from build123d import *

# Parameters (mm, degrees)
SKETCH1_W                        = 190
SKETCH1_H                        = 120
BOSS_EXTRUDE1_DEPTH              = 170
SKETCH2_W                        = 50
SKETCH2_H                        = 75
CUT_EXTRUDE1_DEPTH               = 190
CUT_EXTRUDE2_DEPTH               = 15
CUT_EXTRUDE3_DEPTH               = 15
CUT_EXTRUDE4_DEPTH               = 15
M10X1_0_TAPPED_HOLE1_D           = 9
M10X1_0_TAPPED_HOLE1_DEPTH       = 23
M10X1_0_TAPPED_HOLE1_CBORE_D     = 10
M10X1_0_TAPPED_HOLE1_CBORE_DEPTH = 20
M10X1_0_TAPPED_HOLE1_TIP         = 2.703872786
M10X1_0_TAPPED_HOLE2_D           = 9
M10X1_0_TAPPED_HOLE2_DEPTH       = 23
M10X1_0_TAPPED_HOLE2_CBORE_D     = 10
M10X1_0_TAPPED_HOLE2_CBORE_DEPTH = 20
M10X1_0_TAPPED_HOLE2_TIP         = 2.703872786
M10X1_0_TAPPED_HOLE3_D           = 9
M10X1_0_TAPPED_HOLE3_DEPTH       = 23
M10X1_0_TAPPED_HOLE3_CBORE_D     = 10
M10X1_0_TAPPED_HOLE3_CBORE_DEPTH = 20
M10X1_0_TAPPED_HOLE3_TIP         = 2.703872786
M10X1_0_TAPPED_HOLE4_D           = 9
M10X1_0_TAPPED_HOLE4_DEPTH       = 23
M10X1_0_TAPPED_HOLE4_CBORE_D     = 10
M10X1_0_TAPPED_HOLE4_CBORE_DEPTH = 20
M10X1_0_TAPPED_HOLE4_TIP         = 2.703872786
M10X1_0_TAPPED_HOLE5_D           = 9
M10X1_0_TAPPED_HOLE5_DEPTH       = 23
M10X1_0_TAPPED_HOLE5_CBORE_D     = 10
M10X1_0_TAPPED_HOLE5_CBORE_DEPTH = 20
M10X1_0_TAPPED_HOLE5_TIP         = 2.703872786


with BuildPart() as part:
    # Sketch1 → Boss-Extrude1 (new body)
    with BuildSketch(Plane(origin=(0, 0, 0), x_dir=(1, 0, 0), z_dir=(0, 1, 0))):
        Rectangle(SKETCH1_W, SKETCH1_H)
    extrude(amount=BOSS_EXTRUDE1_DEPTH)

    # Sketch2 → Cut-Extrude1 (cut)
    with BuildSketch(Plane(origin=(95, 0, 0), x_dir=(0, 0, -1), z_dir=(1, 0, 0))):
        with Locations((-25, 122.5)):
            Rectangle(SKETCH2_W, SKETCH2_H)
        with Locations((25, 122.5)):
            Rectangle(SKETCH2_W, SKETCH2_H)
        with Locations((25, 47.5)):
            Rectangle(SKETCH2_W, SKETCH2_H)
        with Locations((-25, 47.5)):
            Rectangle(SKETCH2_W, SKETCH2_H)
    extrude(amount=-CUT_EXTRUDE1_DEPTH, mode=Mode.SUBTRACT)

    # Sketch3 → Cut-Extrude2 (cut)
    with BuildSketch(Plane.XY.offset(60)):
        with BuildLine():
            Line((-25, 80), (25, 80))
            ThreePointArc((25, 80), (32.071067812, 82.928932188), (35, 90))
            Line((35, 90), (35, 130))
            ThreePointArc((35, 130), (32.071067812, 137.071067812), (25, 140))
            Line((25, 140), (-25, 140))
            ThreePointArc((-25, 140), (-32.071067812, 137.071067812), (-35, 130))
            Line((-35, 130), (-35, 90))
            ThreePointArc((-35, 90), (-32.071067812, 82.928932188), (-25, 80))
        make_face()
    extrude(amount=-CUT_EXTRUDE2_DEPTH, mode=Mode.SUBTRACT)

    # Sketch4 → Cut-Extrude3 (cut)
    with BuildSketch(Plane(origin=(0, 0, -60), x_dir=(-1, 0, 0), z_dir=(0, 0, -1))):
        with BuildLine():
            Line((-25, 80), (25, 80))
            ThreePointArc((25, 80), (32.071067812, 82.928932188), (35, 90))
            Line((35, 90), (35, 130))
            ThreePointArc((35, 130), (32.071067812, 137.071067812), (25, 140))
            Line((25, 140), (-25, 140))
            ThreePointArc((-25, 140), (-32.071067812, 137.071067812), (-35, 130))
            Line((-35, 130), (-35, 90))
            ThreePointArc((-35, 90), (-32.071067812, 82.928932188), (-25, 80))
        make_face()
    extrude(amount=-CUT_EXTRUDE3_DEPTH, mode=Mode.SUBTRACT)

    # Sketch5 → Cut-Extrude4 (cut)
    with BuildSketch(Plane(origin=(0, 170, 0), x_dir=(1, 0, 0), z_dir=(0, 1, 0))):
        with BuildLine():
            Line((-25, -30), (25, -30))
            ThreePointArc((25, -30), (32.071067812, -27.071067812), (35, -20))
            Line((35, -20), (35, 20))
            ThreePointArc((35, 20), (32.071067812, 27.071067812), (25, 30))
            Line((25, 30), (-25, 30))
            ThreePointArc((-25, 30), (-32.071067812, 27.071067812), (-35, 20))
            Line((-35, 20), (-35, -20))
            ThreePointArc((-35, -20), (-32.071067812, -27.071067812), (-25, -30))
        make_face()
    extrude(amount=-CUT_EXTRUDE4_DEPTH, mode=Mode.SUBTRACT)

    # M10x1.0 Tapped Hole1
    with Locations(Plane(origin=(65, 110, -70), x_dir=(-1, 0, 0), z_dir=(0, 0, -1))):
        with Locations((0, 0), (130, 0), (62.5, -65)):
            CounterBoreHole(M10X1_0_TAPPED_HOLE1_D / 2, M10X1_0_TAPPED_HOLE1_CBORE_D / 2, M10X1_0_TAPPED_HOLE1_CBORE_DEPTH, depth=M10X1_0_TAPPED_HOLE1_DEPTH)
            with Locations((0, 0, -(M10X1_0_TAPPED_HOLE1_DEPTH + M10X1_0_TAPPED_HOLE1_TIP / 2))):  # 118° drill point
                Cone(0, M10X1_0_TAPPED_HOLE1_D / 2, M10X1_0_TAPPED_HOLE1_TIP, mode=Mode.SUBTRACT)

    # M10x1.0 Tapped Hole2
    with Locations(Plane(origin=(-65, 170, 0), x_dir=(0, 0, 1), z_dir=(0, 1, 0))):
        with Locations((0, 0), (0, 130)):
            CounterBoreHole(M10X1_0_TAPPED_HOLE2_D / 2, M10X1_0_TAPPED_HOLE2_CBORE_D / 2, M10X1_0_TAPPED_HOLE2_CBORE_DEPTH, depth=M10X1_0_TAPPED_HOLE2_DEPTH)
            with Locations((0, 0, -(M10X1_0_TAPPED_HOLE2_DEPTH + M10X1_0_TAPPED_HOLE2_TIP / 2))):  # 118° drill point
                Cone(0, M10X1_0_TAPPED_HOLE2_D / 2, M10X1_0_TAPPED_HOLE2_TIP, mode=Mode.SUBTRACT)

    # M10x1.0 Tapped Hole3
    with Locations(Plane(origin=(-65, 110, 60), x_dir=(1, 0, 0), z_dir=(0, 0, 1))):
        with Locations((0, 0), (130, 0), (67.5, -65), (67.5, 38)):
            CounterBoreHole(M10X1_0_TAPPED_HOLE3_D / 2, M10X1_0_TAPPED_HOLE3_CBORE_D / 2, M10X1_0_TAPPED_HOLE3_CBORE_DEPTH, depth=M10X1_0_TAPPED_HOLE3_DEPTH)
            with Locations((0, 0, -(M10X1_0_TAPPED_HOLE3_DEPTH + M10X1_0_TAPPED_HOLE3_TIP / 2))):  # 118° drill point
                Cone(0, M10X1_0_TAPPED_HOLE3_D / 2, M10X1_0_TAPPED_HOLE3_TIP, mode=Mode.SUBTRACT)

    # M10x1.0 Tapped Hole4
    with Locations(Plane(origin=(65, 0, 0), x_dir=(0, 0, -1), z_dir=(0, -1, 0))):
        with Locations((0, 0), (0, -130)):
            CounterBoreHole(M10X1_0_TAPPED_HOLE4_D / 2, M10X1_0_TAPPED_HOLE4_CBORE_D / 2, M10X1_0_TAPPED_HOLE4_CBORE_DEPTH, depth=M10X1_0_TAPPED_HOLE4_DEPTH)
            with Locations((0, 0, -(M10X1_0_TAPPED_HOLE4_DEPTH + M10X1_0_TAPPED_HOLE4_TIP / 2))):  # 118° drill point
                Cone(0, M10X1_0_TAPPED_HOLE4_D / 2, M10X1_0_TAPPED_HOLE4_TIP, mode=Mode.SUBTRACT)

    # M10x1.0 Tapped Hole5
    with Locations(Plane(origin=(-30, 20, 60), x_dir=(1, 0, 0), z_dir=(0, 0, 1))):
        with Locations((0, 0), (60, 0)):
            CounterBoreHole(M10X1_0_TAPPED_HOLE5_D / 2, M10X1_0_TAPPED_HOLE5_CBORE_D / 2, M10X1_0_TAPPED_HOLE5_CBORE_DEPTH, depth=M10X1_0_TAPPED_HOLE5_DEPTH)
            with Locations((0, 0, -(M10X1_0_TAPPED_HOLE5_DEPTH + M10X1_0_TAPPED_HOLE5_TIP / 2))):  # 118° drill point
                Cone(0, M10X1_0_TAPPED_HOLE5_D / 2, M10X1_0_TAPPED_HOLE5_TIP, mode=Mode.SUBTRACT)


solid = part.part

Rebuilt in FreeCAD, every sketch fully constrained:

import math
import FreeCAD as App
import Part
import Sketcher

V = App.Vector
Q = App.Units.Quantity


def add_polygon(sketch, points):
    """Adds a closed chain of lines whose ends are joined by coincident constraints."""
    first, n = sketch.GeometryCount, len(points)
    for a, b in zip(points, points[1:] + points[:1]):
        sketch.addGeometry(Part.LineSegment(App.Vector(*a, 0), App.Vector(*b, 0)), False)
    for i in range(n):
        sketch.addConstraint(Sketcher.Constraint("Coincident", first + i, 2, first + (i + 1) % n, 1))

doc = App.newDocument("Part")
body = doc.addObject("PartDesign::Body", "Body")

# Sketch on XZ plane
sketch1 = body.newObject("Sketcher::SketchObject", "Sketch")
sketch1.AttachmentSupport = (doc.getObject("XZ_Plane"), [""])
sketch1.MapMode = "FlatFace"
add_polygon(sketch1, [(-95, -60), (-95, 60), (95, 60), (95, -60)])  # lines 0-3
sketch1.addConstraint([
    Sketcher.Constraint("Vertical", 0),
    Sketcher.Constraint("Horizontal", 1),
    Sketcher.Constraint("Vertical", 2),
    Sketcher.Constraint("Horizontal", 3),
    Sketcher.Constraint("Symmetric", 0, 2, 2, 2, -1, 1),
    Sketcher.Constraint("DistanceX", 1, 1, 1, 2, Q("190 mm")),
    Sketcher.Constraint("DistanceY", 0, 1, 0, 2, Q("120 mm")),
])
pad1 = body.newObject("PartDesign::Pad", "Pad")
pad1.Profile = sketch1
pad1.Length = 170
pad1.Reversed = True

# Sketch on YZ plane
sketch2 = body.newObject("Sketcher::SketchObject", "Sketch001")
sketch2.AttachmentSupport = (doc.getObject("YZ_Plane"), [""])
sketch2.MapMode = "FlatFace"
sketch2.AttachmentOffset = App.Placement(V(0, 0, 95), App.Rotation())
add_polygon(sketch2, [(160, 50), (10, 50), (10, -50), (160, -50)])  # lines 0-3
sketch2.addConstraint([
    Sketcher.Constraint("Horizontal", 0),
    Sketcher.Constraint("Vertical", 1),
    Sketcher.Constraint("Horizontal", 2),
    Sketcher.Constraint("Vertical", 3),
    Sketcher.Constraint("DistanceX", 0, 2, 0, 1, Q("150 mm")),
    Sketcher.Constraint("DistanceY", 1, 2, 1, 1, Q("100 mm")),
    Sketcher.Constraint("DistanceX", -1, 1, 0, 2, Q("10 mm")),
    Sketcher.Constraint("DistanceY", -1, 1, 0, 2, Q("50 mm")),
])
pocket1 = body.newObject("PartDesign::Pocket", "Pocket")
pocket1.Profile = sketch2
pocket1.Length = 190

# Sketch on XY plane
sketch3 = body.newObject("Sketcher::SketchObject", "Sketch002")
sketch3.AttachmentSupport = (doc.getObject("XY_Plane"), [""])
sketch3.MapMode = "FlatFace"
sketch3.AttachmentOffset = App.Placement(V(0, 0, 60), App.Rotation())
sketch3.addGeometry([
    Part.LineSegment(V(-25, 80, 0), V(25, 80, 0)),  # 0
    Part.ArcOfCircle(Part.Circle(V(25, 90, 0), V(0, 0, 1), 10), math.radians(-90), math.radians(0)),  # 1
    Part.LineSegment(V(35, 90, 0), V(35, 130, 0)),  # 2
    Part.ArcOfCircle(Part.Circle(V(25, 130, 0), V(0, 0, 1), 10), math.radians(0), math.radians(90)),  # 3
    Part.LineSegment(V(25, 140, 0), V(-25, 140, 0)),  # 4
    Part.ArcOfCircle(Part.Circle(V(-25, 130, 0), V(0, 0, 1), 10), math.radians(90), math.radians(180)),  # 5
    Part.LineSegment(V(-35, 130, 0), V(-35, 90, 0)),  # 6
    Part.ArcOfCircle(Part.Circle(V(-25, 90, 0), V(0, 0, 1), 10), math.radians(180), math.radians(270)),  # 7
], False)
sketch3.addConstraint([
    Sketcher.Constraint("Tangent", 0, 2, 1, 1),
    Sketcher.Constraint("Tangent", 1, 2, 2, 1),
    Sketcher.Constraint("Tangent", 2, 2, 3, 1),
    Sketcher.Constraint("Tangent", 3, 2, 4, 1),
    Sketcher.Constraint("Tangent", 4, 2, 5, 1),
    Sketcher.Constraint("Tangent", 5, 2, 6, 1),
    Sketcher.Constraint("Tangent", 6, 2, 7, 1),
    Sketcher.Constraint("Tangent", 7, 2, 0, 1),
    Sketcher.Constraint("Horizontal", 0),
    Sketcher.Constraint("Vertical", 2),
    Sketcher.Constraint("Horizontal", 4),
    Sketcher.Constraint("Vertical", 6),
    Sketcher.Constraint("Equal", 1, 3),
    Sketcher.Constraint("Equal", 3, 5),
    Sketcher.Constraint("Equal", 5, 7),
    Sketcher.Constraint("Radius", 1, Q("10 mm")),
    Sketcher.Constraint("DistanceX", 0, 1, 0, 2, Q("50 mm")),
    Sketcher.Constraint("DistanceY", 2, 1, 2, 2, Q("40 mm")),
    Sketcher.Constraint("DistanceX", -1, 1, 1, 3, Q("25 mm")),
    Sketcher.Constraint("DistanceY", -1, 1, 1, 3, Q("90 mm")),
])
pocket2 = body.newObject("PartDesign::Pocket", "Pocket001")
pocket2.Profile = sketch3
pocket2.Length = 15

# Sketch on XY plane
sketch4 = body.newObject("Sketcher::SketchObject", "Sketch003")
sketch4.AttachmentSupport = (doc.getObject("XY_Plane"), [""])
sketch4.MapMode = "FlatFace"
sketch4.AttachmentOffset = App.Placement(V(0, 0, -60), App.Rotation())
sketch4.addGeometry([
    Part.LineSegment(V(25, 80, 0), V(-25, 80, 0)),  # 0
    Part.ArcOfCircle(Part.Circle(V(-25, 90, 0), V(0, 0, 1), 10), math.radians(180), math.radians(270)),  # 1
    Part.LineSegment(V(-35, 90, 0), V(-35, 130, 0)),  # 2
    Part.ArcOfCircle(Part.Circle(V(-25, 130, 0), V(0, 0, 1), 10), math.radians(90), math.radians(180)),  # 3
    Part.LineSegment(V(-25, 140, 0), V(25, 140, 0)),  # 4
    Part.ArcOfCircle(Part.Circle(V(25, 130, 0), V(0, 0, 1), 10), math.radians(0), math.radians(90)),  # 5
    Part.LineSegment(V(35, 130, 0), V(35, 90, 0)),  # 6
    Part.ArcOfCircle(Part.Circle(V(25, 90, 0), V(0, 0, 1), 10), math.radians(-90), math.radians(0)),  # 7
], False)
sketch4.addConstraint([
    Sketcher.Constraint("Tangent", 0, 2, 1, 2),
    Sketcher.Constraint("Tangent", 1, 1, 2, 1),
    Sketcher.Constraint("Tangent", 2, 2, 3, 2),
    Sketcher.Constraint("Tangent", 3, 1, 4, 1),
    Sketcher.Constraint("Tangent", 4, 2, 5, 2),
    Sketcher.Constraint("Tangent", 5, 1, 6, 1),
    Sketcher.Constraint("Tangent", 6, 2, 7, 2),
    Sketcher.Constraint("Tangent", 7, 1, 0, 1),
    Sketcher.Constraint("Horizontal", 0),
    Sketcher.Constraint("Vertical", 2),
    Sketcher.Constraint("Horizontal", 4),
    Sketcher.Constraint("Vertical", 6),
    Sketcher.Constraint("Equal", 1, 3),
    Sketcher.Constraint("Equal", 3, 5),
    Sketcher.Constraint("Equal", 5, 7),
    Sketcher.Constraint("Radius", 1, Q("10 mm")),
    Sketcher.Constraint("DistanceX", 0, 2, 0, 1, Q("50 mm")),
    Sketcher.Constraint("DistanceY", 2, 1, 2, 2, Q("40 mm")),
    Sketcher.Constraint("DistanceX", 1, 3, -1, 1, Q("25 mm")),
    Sketcher.Constraint("DistanceY", -1, 1, 1, 3, Q("90 mm")),
])
pocket3 = body.newObject("PartDesign::Pocket", "Pocket002")
pocket3.Profile = sketch4
pocket3.Length = 15
pocket3.Reversed = True

# Sketch on XZ plane
sketch5 = body.newObject("Sketcher::SketchObject", "Sketch004")
sketch5.AttachmentSupport = (doc.getObject("XZ_Plane"), [""])
sketch5.MapMode = "FlatFace"
sketch5.AttachmentOffset = App.Placement(V(0, 0, -170), App.Rotation())
sketch5.addGeometry([
    Part.LineSegment(V(-25, 30, 0), V(25, 30, 0)),  # 0
    Part.ArcOfCircle(Part.Circle(V(25, 20, 0), V(0, 0, 1), 10), math.radians(0), math.radians(90)),  # 1
    Part.LineSegment(V(35, 20, 0), V(35, -20, 0)),  # 2
    Part.ArcOfCircle(Part.Circle(V(25, -20, 0), V(0, 0, 1), 10), math.radians(-90), math.radians(0)),  # 3
    Part.LineSegment(V(25, -30, 0), V(-25, -30, 0)),  # 4
    Part.ArcOfCircle(Part.Circle(V(-25, -20, 0), V(0, 0, 1), 10), math.radians(180), math.radians(270)),  # 5
    Part.LineSegment(V(-35, -20, 0), V(-35, 20, 0)),  # 6
    Part.ArcOfCircle(Part.Circle(V(-25, 20, 0), V(0, 0, 1), 10), math.radians(90), math.radians(180)),  # 7
], False)
sketch5.addConstraint([
    Sketcher.Constraint("Tangent", 0, 2, 1, 2),
    Sketcher.Constraint("Tangent", 1, 1, 2, 1),
    Sketcher.Constraint("Tangent", 2, 2, 3, 2),
    Sketcher.Constraint("Tangent", 3, 1, 4, 1),
    Sketcher.Constraint("Tangent", 4, 2, 5, 2),
    Sketcher.Constraint("Tangent", 5, 1, 6, 1),
    Sketcher.Constraint("Tangent", 6, 2, 7, 2),
    Sketcher.Constraint("Tangent", 7, 1, 0, 1),
    Sketcher.Constraint("Horizontal", 0),
    Sketcher.Constraint("Vertical", 2),
    Sketcher.Constraint("Horizontal", 4),
    Sketcher.Constraint("Vertical", 6),
    Sketcher.Constraint("Equal", 1, 3),
    Sketcher.Constraint("Equal", 3, 5),
    Sketcher.Constraint("Equal", 5, 7),
    Sketcher.Constraint("Symmetric", 1, 3, 5, 3, -1, 1),
    Sketcher.Constraint("Radius", 1, Q("10 mm")),
    Sketcher.Constraint("DistanceX", 0, 1, 0, 2, Q("50 mm")),
    Sketcher.Constraint("DistanceY", 2, 2, 2, 1, Q("40 mm")),
])
pocket4 = body.newObject("PartDesign::Pocket", "Pocket003")
pocket4.Profile = sketch5
pocket4.Length = 15
pocket4.Reversed = True

# Sketch on XY plane
sketch6 = body.newObject("Sketcher::SketchObject", "Sketch005")
sketch6.AttachmentSupport = (doc.getObject("XY_Plane"), [""])
sketch6.MapMode = "FlatFace"
sketch6.AttachmentOffset = App.Placement(V(0, 0, -70), App.Rotation())
sketch6.addGeometry([
    Part.Circle(V(65, 110, 0), V(0, 0, 1), 4.5),
    Part.Circle(V(-65, 110, 0), V(0, 0, 1), 4.5),
    Part.Circle(V(2.5, 45, 0), V(0, 0, 1), 4.5),
], False)
sketch6.addConstraint([
    Sketcher.Constraint("Equal", 0, 1),
    Sketcher.Constraint("Equal", 1, 2),
    Sketcher.Constraint("Symmetric", 0, 3, 1, 3, -2),
    Sketcher.Constraint("Diameter", 0, Q("9 mm")),
    Sketcher.Constraint("DistanceX", -1, 1, 0, 3, Q("65 mm")),
    Sketcher.Constraint("DistanceY", -1, 1, 0, 3, Q("110 mm")),
    Sketcher.Constraint("DistanceY", -1, 1, 2, 3, Q("45 mm")),
    Sketcher.Constraint("DistanceX", -1, 1, 2, 3, Q("2.5 mm")),
])
doc.recompute()
hole = body.newObject("PartDesign::Hole", "Hole")
hole.Profile = sketch6
hole.ThreadType = "None"
hole.Diameter = 9
hole.DepthType = "Dimension"
hole.Depth = 23
hole.DrillPoint = "Angled"
hole.DrillPointAngle = 118
hole.HoleCutType = "Counterbore"
hole.HoleCutDiameter = 10
hole.HoleCutDepth = 20
hole.Reversed = True

# Sketch on XZ plane
sketch7 = body.newObject("Sketcher::SketchObject", "Sketch006")
sketch7.AttachmentSupport = (doc.getObject("XZ_Plane"), [""])
sketch7.MapMode = "FlatFace"
sketch7.AttachmentOffset = App.Placement(V(0, 0, -170), App.Rotation())
sketch7.addGeometry([
    Part.Circle(V(-65, 0, 0), V(0, 0, 1), 4.5),
    Part.Circle(V(65, 0, 0), V(0, 0, 1), 4.5),
], False)
sketch7.addConstraint([
    Sketcher.Constraint("Equal", 0, 1),
    Sketcher.Constraint("Symmetric", 0, 3, 1, 3, -1, 1),
    Sketcher.Constraint("PointOnObject", 0, 3, -1),
    Sketcher.Constraint("Diameter", 0, Q("9 mm")),
    Sketcher.Constraint("DistanceX", 0, 3, -1, 1, Q("65 mm")),
])
doc.recompute()
hole2 = body.newObject("PartDesign::Hole", "Hole001")
hole2.Profile = sketch7
hole2.ThreadType = "None"
hole2.Diameter = 9
hole2.DepthType = "Dimension"
hole2.Depth = 23
hole2.DrillPoint = "Angled"
hole2.DrillPointAngle = 118
hole2.HoleCutType = "Counterbore"
hole2.HoleCutDiameter = 10
hole2.HoleCutDepth = 20
hole2.Reversed = True

# Sketch on XY plane
sketch8 = body.newObject("Sketcher::SketchObject", "Sketch007")
sketch8.AttachmentSupport = (doc.getObject("XY_Plane"), [""])
sketch8.MapMode = "FlatFace"
sketch8.AttachmentOffset = App.Placement(V(0, 0, 60), App.Rotation())
sketch8.addGeometry([
    Part.Circle(V(-65, 110, 0), V(0, 0, 1), 4.5),
    Part.Circle(V(65, 110, 0), V(0, 0, 1), 4.5),
    Part.Circle(V(2.5, 45, 0), V(0, 0, 1), 4.5),
    Part.Circle(V(2.5, 148, 0), V(0, 0, 1), 4.5),
], False)
sketch8.addConstraint([
    Sketcher.Constraint("Equal", 0, 1),
    Sketcher.Constraint("Equal", 1, 2),
    Sketcher.Constraint("Equal", 2, 3),
    Sketcher.Constraint("Symmetric", 0, 3, 1, 3, -2),
    Sketcher.Constraint("Vertical", 2, 3, 3, 3),
    Sketcher.Constraint("Diameter", 0, Q("9 mm")),
    Sketcher.Constraint("DistanceX", 0, 3, -1, 1, Q("65 mm")),
    Sketcher.Constraint("DistanceY", -1, 1, 0, 3, Q("110 mm")),
    Sketcher.Constraint("DistanceY", -1, 1, 2, 3, Q("45 mm")),
    Sketcher.Constraint("DistanceY", -1, 1, 3, 3, Q("148 mm")),
    Sketcher.Constraint("DistanceX", -1, 1, 2, 3, Q("2.5 mm")),
])
doc.recompute()
hole3 = body.newObject("PartDesign::Hole", "Hole002")
hole3.Profile = sketch8
hole3.ThreadType = "None"
hole3.Diameter = 9
hole3.DepthType = "Dimension"
hole3.Depth = 23
hole3.DrillPoint = "Angled"
hole3.DrillPointAngle = 118
hole3.HoleCutType = "Counterbore"
hole3.HoleCutDiameter = 10
hole3.HoleCutDepth = 20

# Sketch on XZ plane
sketch9 = body.newObject("Sketcher::SketchObject", "Sketch008")
sketch9.AttachmentSupport = (doc.getObject("XZ_Plane"), [""])
sketch9.MapMode = "FlatFace"
sketch9.addGeometry([
    Part.Circle(V(65, 0, 0), V(0, 0, 1), 4.5),
    Part.Circle(V(-65, 0, 0), V(0, 0, 1), 4.5),
], False)
sketch9.addConstraint([
    Sketcher.Constraint("Equal", 0, 1),
    Sketcher.Constraint("Symmetric", 0, 3, 1, 3, -1, 1),
    Sketcher.Constraint("PointOnObject", 0, 3, -1),
    Sketcher.Constraint("Diameter", 0, Q("9 mm")),
    Sketcher.Constraint("DistanceX", -1, 1, 0, 3, Q("65 mm")),
])
doc.recompute()
hole4 = body.newObject("PartDesign::Hole", "Hole003")
hole4.Profile = sketch9
hole4.ThreadType = "None"
hole4.Diameter = 9
hole4.DepthType = "Dimension"
hole4.Depth = 23
hole4.DrillPoint = "Angled"
hole4.DrillPointAngle = 118
hole4.HoleCutType = "Counterbore"
hole4.HoleCutDiameter = 10
hole4.HoleCutDepth = 20

# Sketch on XY plane
sketch10 = body.newObject("Sketcher::SketchObject", "Sketch009")
sketch10.AttachmentSupport = (doc.getObject("XY_Plane"), [""])
sketch10.MapMode = "FlatFace"
sketch10.AttachmentOffset = App.Placement(V(0, 0, 60), App.Rotation())
sketch10.addGeometry([
    Part.Circle(V(-30, 20, 0), V(0, 0, 1), 4.5),
    Part.Circle(V(30, 20, 0), V(0, 0, 1), 4.5),
], False)
sketch10.addConstraint([
    Sketcher.Constraint("Equal", 0, 1),
    Sketcher.Constraint("Symmetric", 0, 3, 1, 3, -2),
    Sketcher.Constraint("Diameter", 0, Q("9 mm")),
    Sketcher.Constraint("DistanceX", 0, 3, -1, 1, Q("30 mm")),
    Sketcher.Constraint("DistanceY", -1, 1, 0, 3, Q("20 mm")),
])
doc.recompute()
hole5 = body.newObject("PartDesign::Hole", "Hole004")
hole5.Profile = sketch10
hole5.ThreadType = "None"
hole5.Diameter = 9
hole5.DepthType = "Dimension"
hole5.Depth = 23
hole5.DrillPoint = "Angled"
hole5.DrillPointAngle = 118
hole5.HoleCutType = "Counterbore"
hole5.HoleCutDiameter = 10
hole5.HoleCutDepth = 20

doc.recompute()
